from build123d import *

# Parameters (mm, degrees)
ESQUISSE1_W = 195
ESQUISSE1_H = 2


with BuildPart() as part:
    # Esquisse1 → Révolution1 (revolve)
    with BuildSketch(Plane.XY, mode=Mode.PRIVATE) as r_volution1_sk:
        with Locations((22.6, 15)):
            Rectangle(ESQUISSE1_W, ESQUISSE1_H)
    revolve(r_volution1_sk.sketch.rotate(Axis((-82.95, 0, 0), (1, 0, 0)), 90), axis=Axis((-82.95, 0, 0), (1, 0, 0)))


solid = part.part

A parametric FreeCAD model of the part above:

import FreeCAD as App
import Part
import Sketcher
from FreeCAD import Vector

doc = App.newDocument("Part")
body = doc.addObject("PartDesign::Body", "Body")

sketch1 = body.newObject("Sketcher::SketchObject", "Sketch")
sketch1.AttachmentSupport = (doc.getObject("XY_Plane"), [""])
sketch1.MapMode = "FlatFace"
sketch1.addGeometry([
    Part.LineSegment(Vector(-74.9, 16, 0), Vector(-74.9, 14, 0)),
    Part.LineSegment(Vector(-74.9, 14, 0), Vector(120.1, 14, 0)),
    Part.LineSegment(Vector(120.1, 14, 0), Vector(120.1, 16, 0)),
    Part.LineSegment(Vector(120.1, 16, 0), Vector(-74.9, 16, 0)),
], False)
sketch1.addConstraint([
    Sketcher.Constraint("Coincident", 0, 2, 1, 1),
    Sketcher.Constraint("Coincident", 1, 2, 2, 1),
    Sketcher.Constraint("Coincident", 2, 2, 3, 1),
    Sketcher.Constraint("Coincident", 3, 2, 0, 1),
    Sketcher.Constraint("Vertical", 0),
    Sketcher.Constraint("Horizontal", 1),
    Sketcher.Constraint("Vertical", 2),
    Sketcher.Constraint("Horizontal", 3),
    Sketcher.Constraint("DistanceX", 1, 1, 1, 2, 195.0),
    Sketcher.Constraint("DistanceY", 0, 2, 0, 1, 2.0),
    Sketcher.Constraint("DistanceY", -1, 1, 0, 2, 14.0),
    Sketcher.Constraint("DistanceX", 0, 2, -1, 1, 74.9),
])
revolution = body.newObject("PartDesign::Revolution", "Revolution")
revolution.Profile = sketch1
revolution.ReferenceAxis = (sketch1, ["H_Axis"])
revolution.Angle = 360

doc.recompute()
